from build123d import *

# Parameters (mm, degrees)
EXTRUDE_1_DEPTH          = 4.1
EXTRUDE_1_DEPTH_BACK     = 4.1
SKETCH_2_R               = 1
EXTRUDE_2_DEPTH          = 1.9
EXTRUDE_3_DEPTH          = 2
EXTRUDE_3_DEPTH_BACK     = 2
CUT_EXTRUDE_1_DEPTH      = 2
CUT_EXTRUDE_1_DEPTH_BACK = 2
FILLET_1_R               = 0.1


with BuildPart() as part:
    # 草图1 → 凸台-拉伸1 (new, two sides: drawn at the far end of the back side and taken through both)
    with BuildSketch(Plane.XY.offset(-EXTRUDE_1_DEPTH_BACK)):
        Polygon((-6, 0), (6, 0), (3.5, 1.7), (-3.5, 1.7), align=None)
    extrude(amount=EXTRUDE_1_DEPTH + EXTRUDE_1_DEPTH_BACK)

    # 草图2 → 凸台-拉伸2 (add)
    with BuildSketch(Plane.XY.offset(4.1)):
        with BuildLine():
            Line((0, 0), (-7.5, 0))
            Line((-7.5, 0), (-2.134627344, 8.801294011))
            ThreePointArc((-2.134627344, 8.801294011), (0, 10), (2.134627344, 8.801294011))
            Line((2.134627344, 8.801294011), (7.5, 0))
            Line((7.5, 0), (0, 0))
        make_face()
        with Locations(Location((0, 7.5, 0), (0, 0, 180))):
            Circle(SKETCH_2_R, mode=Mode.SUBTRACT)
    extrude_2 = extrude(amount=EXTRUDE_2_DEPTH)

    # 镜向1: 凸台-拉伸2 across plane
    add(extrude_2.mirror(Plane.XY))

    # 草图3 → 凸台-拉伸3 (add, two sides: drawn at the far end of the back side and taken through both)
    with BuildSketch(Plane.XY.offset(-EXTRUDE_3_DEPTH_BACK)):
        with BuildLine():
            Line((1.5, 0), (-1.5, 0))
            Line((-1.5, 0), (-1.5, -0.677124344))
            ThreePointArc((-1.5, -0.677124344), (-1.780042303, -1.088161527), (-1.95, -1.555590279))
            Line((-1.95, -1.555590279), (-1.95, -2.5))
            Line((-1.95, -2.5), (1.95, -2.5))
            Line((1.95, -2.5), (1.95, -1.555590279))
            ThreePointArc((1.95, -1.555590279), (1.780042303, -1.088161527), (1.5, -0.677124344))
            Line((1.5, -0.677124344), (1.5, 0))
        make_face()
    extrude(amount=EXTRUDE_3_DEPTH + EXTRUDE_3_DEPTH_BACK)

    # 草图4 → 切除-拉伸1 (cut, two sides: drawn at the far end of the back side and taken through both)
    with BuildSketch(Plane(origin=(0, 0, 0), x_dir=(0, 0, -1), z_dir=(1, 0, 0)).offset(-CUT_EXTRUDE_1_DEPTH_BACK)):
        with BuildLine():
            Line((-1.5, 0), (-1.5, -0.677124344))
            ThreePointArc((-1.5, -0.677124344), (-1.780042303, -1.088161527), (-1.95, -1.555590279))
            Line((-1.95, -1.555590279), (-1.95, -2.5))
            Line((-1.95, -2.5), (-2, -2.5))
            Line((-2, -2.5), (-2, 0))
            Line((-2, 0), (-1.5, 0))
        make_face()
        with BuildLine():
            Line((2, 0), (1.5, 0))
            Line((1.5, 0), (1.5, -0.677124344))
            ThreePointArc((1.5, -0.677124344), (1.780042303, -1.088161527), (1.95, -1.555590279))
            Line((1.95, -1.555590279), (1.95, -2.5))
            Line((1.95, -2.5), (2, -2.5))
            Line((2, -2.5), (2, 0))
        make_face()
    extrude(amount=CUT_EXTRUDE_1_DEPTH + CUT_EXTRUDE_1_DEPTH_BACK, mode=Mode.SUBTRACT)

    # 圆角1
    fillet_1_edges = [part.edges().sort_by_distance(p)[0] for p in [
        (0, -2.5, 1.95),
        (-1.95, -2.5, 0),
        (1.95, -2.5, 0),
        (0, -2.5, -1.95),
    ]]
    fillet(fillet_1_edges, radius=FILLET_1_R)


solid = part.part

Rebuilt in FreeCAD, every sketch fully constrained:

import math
import FreeCAD as App
import Part
import Sketcher
from FreeCAD import Vector
Q = App.Units.Quantity


def edges_at(feature, points):
    """Names of the edges that pass closest to the given points."""
    edges = feature.Shape.Edges
    near = lambda p: min(range(len(edges)), key=lambda i: edges[i].distToShape(Part.Vertex(*p))[0])
    return sorted({f"Edge{near(p) + 1}" for p in points})


def add_polygon(sketch, points):
    """Adds a closed chain of lines whose ends are joined by coincident constraints."""
    first, n = sketch.GeometryCount, len(points)
    for a, b in zip(points, points[1:] + points[:1]):
        sketch.addGeometry(Part.LineSegment(App.Vector(*a, 0), App.Vector(*b, 0)), False)
    for i in range(n):
        sketch.addConstraint(Sketcher.Constraint("Coincident", first + i, 2, first + (i + 1) % n, 1))

doc = App.newDocument("Part")
body = doc.addObject("PartDesign::Body", "Body")

# Sketch on XY plane
sketch1 = body.newObject("Sketcher::SketchObject", "Sketch")
sketch1.AttachmentSupport = (doc.getObject("XY_Plane"), [""])
sketch1.MapMode = "FlatFace"
add_polygon(sketch1, [(-6, 0), (6, 0), (3.5, 1.7), (-3.5, 1.7)])  # lines 0-3
sketch1.addConstraint(Sketcher.Constraint("Horizontal", 0))
sketch1.addConstraint(Sketcher.Constraint("Horizontal", 2))
sketch1.addConstraint(Sketcher.Constraint("Symmetric", 0, 2, 3, 2, -1, 1))
sketch1.addConstraint(Sketcher.Constraint("Equal", 1, 3))
sketch1.addConstraint(Sketcher.Constraint("DistanceX", 0, 1, 0, 2, Q("12 mm")))
sketch1.addConstraint(Sketcher.Constraint("DistanceX", 2, 2, 2, 1, Q("7 mm")))
sketch1.addConstraint(Sketcher.Constraint("DistanceY", -1, 1, 1, 2, Q("1.7 mm")))
pad1 = body.newObject("PartDesign::Pad", "Pad")
pad1.Profile = sketch1
pad1.Type = "TwoLengths"
pad1.Length = 4.1
pad1.Length2 = 4.1

# Sketch on XY plane
sketch2 = body.newObject("Sketcher::SketchObject", "Sketch001")
sketch2.AttachmentSupport = (doc.getObject("XY_Plane"), [""])
sketch2.MapMode = "FlatFace"
sketch2.AttachmentOffset = App.Placement(Vector(0, 0, 4.1), App.Rotation())
sketch2.addGeometry(Part.LineSegment(Vector(-2.1, 8.8, 0), Vector(-7.5, 0, 0)), False)
sketch2.addGeometry(Part.LineSegment(Vector(-7.5, 0, 0), Vector(7.5, 0, 0)), False)
sketch2.addGeometry(Part.LineSegment(Vector(7.5, 0, 0), Vector(2.1, 8.8, 0)), False)
sketch2.addGeometry(Part.ArcOfCircle(Part.Circle(Vector(0, 7.5, 0), Vector(0, 0, 1), 2.5), math.radians(31), math.radians(149)), False)
sketch2.addGeometry(Part.Circle(Vector(0, 7.5, 0), Vector(0, 0, 1), 1), False)
sketch2.addConstraint(Sketcher.Constraint("Coincident", 0, 2, 1, 1))
sketch2.addConstraint(Sketcher.Constraint("Coincident", 1, 2, 2, 1))
sketch2.addConstraint(Sketcher.Constraint("Tangent", 2, 2, 3, 1))
sketch2.addConstraint(Sketcher.Constraint("Tangent", 3, 2, 0, 1))
sketch2.addConstraint(Sketcher.Constraint("Horizontal", 1))
sketch2.addConstraint(Sketcher.Constraint("Coincident", 4, 3, 3, 3))
sketch2.addConstraint(Sketcher.Constraint("Symmetric", 0, 2, 1, 2, -1, 1))
sketch2.addConstraint(Sketcher.Constraint("PointOnObject", 3, 3, -2))
sketch2.addConstraint(Sketcher.Constraint("Diameter", 4, Q("2 mm")))
sketch2.addConstraint(Sketcher.Constraint("Radius", 3, Q("2.5 mm")))
sketch2.addConstraint(Sketcher.Constraint("DistanceX", 1, 1, 1, 2, Q("15 mm")))
sketch2.addConstraint(Sketcher.Constraint("DistanceY", -1, 1, 3, 3, Q("7.5 mm")))
pad2 = body.newObject("PartDesign::Pad", "Pad001")
pad2.Profile = sketch2
pad2.Length = 1.9
doc.recompute()

mirrored = body.newObject("PartDesign::Mirrored", "Mirrored")
mirrored.Originals = [pad2]
mirrored.MirrorPlane = (doc.getObject("XY_Plane"), [""])
body.Tip = mirrored

# Sketch on XY plane
sketch3 = body.newObject("Sketcher::SketchObject", "Sketch002")
sketch3.AttachmentSupport = (doc.getObject("XY_Plane"), [""])
sketch3.MapMode = "FlatFace"
sketch3.addGeometry(Part.LineSegment(Vector(1.5, 0, 0), Vector(-1.5, 0, 0)), False)
sketch3.addGeometry(Part.LineSegment(Vector(-1.5, 0, 0), Vector(-1.5, -0.7, 0)), False)
sketch3.addGeometry(Part.ArcOfCircle(Part.Circle(Vector(0, -2, 0), Vector(0, 0, 1), 2), math.radians(139), math.radians(167)), False)
sketch3.addGeometry(Part.LineSegment(Vector(-1.9, -1.6, 0), Vector(-1.9, -2.5, 0)), False)
sketch3.addGeometry(Part.LineSegment(Vector(-1.9, -2.5, 0), Vector(1.9, -2.5, 0)), False)
sketch3.addGeometry(Part.LineSegment(Vector(1.9, -2.5, 0), Vector(1.9, -1.6, 0)), False)
sketch3.addGeometry(Part.ArcOfCircle(Part.Circle(Vector(0, -2, 0), Vector(0, 0, 1), 2), math.radians(13), math.radians(41)), False)
sketch3.addGeometry(Part.LineSegment(Vector(1.5, -0.7, 0), Vector(1.5, 0, 0)), False)
sketch3.addConstraint(Sketcher.Constraint("Coincident", 0, 2, 1, 1))
sketch3.addConstraint(Sketcher.Constraint("Coincident", 1, 2, 2, 1))
sketch3.addConstraint(Sketcher.Constraint("Coincident", 2, 2, 3, 1))
sketch3.addConstraint(Sketcher.Constraint("Coincident", 3, 2, 4, 1))
sketch3.addConstraint(Sketcher.Constraint("Coincident", 4, 2, 5, 1))
sketch3.addConstraint(Sketcher.Constraint("Coincident", 5, 2, 6, 1))
sketch3.addConstraint(Sketcher.Constraint("Coincident", 6, 2, 7, 1))
sketch3.addConstraint(Sketcher.Constraint("Coincident", 7, 2, 0, 1))
sketch3.addConstraint(Sketcher.Constraint("Horizontal", 0))
sketch3.addConstraint(Sketcher.Constraint("Vertical", 1))
sketch3.addConstraint(Sketcher.Constraint("Vertical", 3))
sketch3.addConstraint(Sketcher.Constraint("Horizontal", 4))
sketch3.addConstraint(Sketcher.Constraint("Vertical", 5))
sketch3.addConstraint(Sketcher.Constraint("Vertical", 7))
sketch3.addConstraint(Sketcher.Constraint("Coincident", 6, 3, 2, 3))
sketch3.addConstraint(Sketcher.Constraint("Equal", 2, 6))
sketch3.addConstraint(Sketcher.Constraint("Symmetric", 0, 2, 7, 2, -1, 1))
sketch3.addConstraint(Sketcher.Constraint("Symmetric", 2, 2, 5, 2, -2))
sketch3.addConstraint(Sketcher.Constraint("Radius", 2, Q("2 mm")))
sketch3.addConstraint(Sketcher.Constraint("DistanceX", 0, 2, 0, 1, Q("3 mm")))
sketch3.addConstraint(Sketcher.Constraint("DistanceX", 4, 1, 4, 2, Q("3.9 mm")))
sketch3.addConstraint(Sketcher.Constraint("DistanceY", 2, 3, -1, 1, Q("2 mm")))
sketch3.addConstraint(Sketcher.Constraint("DistanceY", 3, 2, -1, 1, Q("2.5 mm")))
pad3 = body.newObject("PartDesign::Pad", "Pad002")
pad3.Profile = sketch3
pad3.Type = "TwoLengths"
pad3.Length = 2
pad3.Length2 = 2

# Sketch on YZ plane
sketch4 = body.newObject("Sketcher::SketchObject", "Sketch003")
sketch4.AttachmentSupport = (doc.getObject("YZ_Plane"), [""])
sketch4.MapMode = "FlatFace"
sketch4.addGeometry(Part.LineSegment(Vector(-0.68, 1.5, 0), Vector(0, 1.5, 0)), False)
sketch4.addGeometry(Part.LineSegment(Vector(0, 1.5, 0), Vector(0, 2, 0)), False)
sketch4.addGeometry(Part.LineSegment(Vector(0, 2, 0), Vector(-2.5, 2, 0)), False)
sketch4.addGeometry(Part.LineSegment(Vector(-2.5, 2, 0), Vector(-2.5, 1.95, 0)), False)
sketch4.addGeometry(Part.LineSegment(Vector(-2.5, 1.95, 0), Vector(-1.56, 1.95, 0)), False)
sketch4.addGeometry(Part.ArcOfCircle(Part.Circle(Vector(-2, 0, 0), Vector(0, 0, 1), 2), math.radians(49), math.radians(77)), False)
sketch4.addGeometry(Part.LineSegment(Vector(0, -2, 0), Vector(0, -1.5, 0)), False)
sketch4.addGeometry(Part.LineSegment(Vector(0, -1.5, 0), Vector(-0.68, -1.5, 0)), False)
sketch4.addGeometry(Part.ArcOfCircle(Part.Circle(Vector(-2, 0, 0), Vector(0, 0, 1), 2), math.radians(-77), math.radians(-49)), False)
sketch4.addGeometry(Part.LineSegment(Vector(-1.56, -1.95, 0), Vector(-2.5, -1.95, 0)), False)
sketch4.addGeometry(Part.LineSegment(Vector(-2.5, -1.95, 0), Vector(-2.5, -2, 0)), False)
sketch4.addGeometry(Part.LineSegment(Vector(-2.5, -2, 0), Vector(0, -2, 0)), False)
sketch4.addConstraint(Sketcher.Constraint("Coincident", 0, 2, 1, 1))
sketch4.addConstraint(Sketcher.Constraint("Coincident", 1, 2, 2, 1))
sketch4.addConstraint(Sketcher.Constraint("Coincident", 2, 2, 3, 1))
sketch4.addConstraint(Sketcher.Constraint("Coincident", 3, 2, 4, 1))
sketch4.addConstraint(Sketcher.Constraint("Coincident", 4, 2, 5, 2))
sketch4.addConstraint(Sketcher.Constraint("Coincident", 5, 1, 0, 1))
sketch4.addConstraint(Sketcher.Constraint("Coincident", 6, 2, 7, 1))
sketch4.addConstraint(Sketcher.Constraint("Coincident", 7, 2, 8, 2))
sketch4.addConstraint(Sketcher.Constraint("Coincident", 8, 1, 9, 1))
sketch4.addConstraint(Sketcher.Constraint("Coincident", 9, 2, 10, 1))
sketch4.addConstraint(Sketcher.Constraint("Coincident", 10, 2, 11, 1))
sketch4.addConstraint(Sketcher.Constraint("Coincident", 11, 2, 6, 1))
sketch4.addConstraint(Sketcher.Constraint("Horizontal", 0))
sketch4.addConstraint(Sketcher.Constraint("Vertical", 1))
sketch4.addConstraint(Sketcher.Constraint("Horizontal", 2))
sketch4.addConstraint(Sketcher.Constraint("Vertical", 3))
sketch4.addConstraint(Sketcher.Constraint("Horizontal", 4))
sketch4.addConstraint(Sketcher.Constraint("Vertical", 6))
sketch4.addConstraint(Sketcher.Constraint("Horizontal", 7))
sketch4.addConstraint(Sketcher.Constraint("Horizontal", 9))
sketch4.addConstraint(Sketcher.Constraint("Vertical", 10))
sketch4.addConstraint(Sketcher.Constraint("Horizontal", 11))
sketch4.addConstraint(Sketcher.Constraint("Coincident", 8, 3, 5, 3))
sketch4.addConstraint(Sketcher.Constraint("Equal", 5, 8))
sketch4.addConstraint(Sketcher.Constraint("Symmetric", 0, 2, 6, 2, -1, 1))
sketch4.addConstraint(Sketcher.Constraint("Symmetric", 4, 2, 8, 1, -1))
sketch4.addConstraint(Sketcher.Constraint("Symmetric", 2, 2, 10, 2, -1))
sketch4.addConstraint(Sketcher.Constraint("PointOnObject", 0, 2, -2))
sketch4.addConstraint(Sketcher.Constraint("Radius", 5, Q("2 mm")))
sketch4.addConstraint(Sketcher.Constraint("DistanceX", 2, 2, 2, 1, Q("2.5 mm")))
sketch4.addConstraint(Sketcher.Constraint("DistanceY", 1, 1, 1, 2, Q("0.5 mm")))
sketch4.addConstraint(Sketcher.Constraint("DistanceX", 5, 3, -1, 1, Q("2 mm")))
sketch4.addConstraint(Sketcher.Constraint("DistanceY", -1, 1, 1, 2, Q("2 mm")))
sketch4.addConstraint(Sketcher.Constraint("DistanceY", 3, 2, 3, 1, Q("0.05 mm")))
pocket1 = body.newObject("PartDesign::Pocket", "Pocket")
pocket1.Profile = sketch4
pocket1.Type = "ThroughAll"
pocket1.Midplane = True
doc.recompute()

fillet = body.newObject("PartDesign::Fillet", "Fillet")
fillet.Base = (pocket1, edges_at(pocket1, [
    (0, -2.5, 1.95),
    (-1.95, -2.5, 0),
    (1.95, -2.5, 0),
    (0, -2.5, -1.95),
]))
fillet.Radius = 0.1

doc.recompute()
